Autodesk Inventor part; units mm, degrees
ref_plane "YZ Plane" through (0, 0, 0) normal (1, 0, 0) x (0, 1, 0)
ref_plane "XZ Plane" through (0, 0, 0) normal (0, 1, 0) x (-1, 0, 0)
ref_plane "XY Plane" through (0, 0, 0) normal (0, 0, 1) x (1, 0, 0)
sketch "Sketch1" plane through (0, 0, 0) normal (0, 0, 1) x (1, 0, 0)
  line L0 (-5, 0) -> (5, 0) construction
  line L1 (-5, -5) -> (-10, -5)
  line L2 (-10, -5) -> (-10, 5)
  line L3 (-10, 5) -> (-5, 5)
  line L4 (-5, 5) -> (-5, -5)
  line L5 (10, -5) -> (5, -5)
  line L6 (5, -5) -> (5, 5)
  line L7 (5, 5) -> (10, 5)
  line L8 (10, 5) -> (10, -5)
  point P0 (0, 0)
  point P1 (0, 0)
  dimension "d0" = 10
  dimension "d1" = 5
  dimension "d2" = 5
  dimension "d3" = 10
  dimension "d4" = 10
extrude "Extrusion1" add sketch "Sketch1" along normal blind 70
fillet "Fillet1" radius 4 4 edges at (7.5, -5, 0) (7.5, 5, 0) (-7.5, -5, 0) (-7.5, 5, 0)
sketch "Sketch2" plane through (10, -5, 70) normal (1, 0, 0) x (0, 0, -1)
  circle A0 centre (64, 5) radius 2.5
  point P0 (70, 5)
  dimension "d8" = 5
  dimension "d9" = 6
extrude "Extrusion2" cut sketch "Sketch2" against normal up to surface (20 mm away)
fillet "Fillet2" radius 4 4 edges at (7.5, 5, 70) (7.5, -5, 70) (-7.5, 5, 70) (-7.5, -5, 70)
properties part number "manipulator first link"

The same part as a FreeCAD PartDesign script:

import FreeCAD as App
import Part
import Sketcher
from FreeCAD import Vector
Q = App.Units.Quantity


def edges_at(feature, points):
    """Names of the edges that pass closest to the given points."""
    edges = feature.Shape.Edges
    near = lambda p: min(range(len(edges)), key=lambda i: edges[i].distToShape(Part.Vertex(*p))[0])
    return sorted({f"Edge{near(p) + 1}" for p in points})


def add_polygon(sketch, points):
    """Adds a closed chain of lines whose ends are joined by coincident constraints."""
    first, n = sketch.GeometryCount, len(points)
    for a, b in zip(points, points[1:] + points[:1]):
        sketch.addGeometry(Part.LineSegment(App.Vector(*a, 0), App.Vector(*b, 0)), False)
    for i in range(n):
        sketch.addConstraint(Sketcher.Constraint("Coincident", first + i, 2, first + (i + 1) % n, 1))

doc = App.newDocument("Part")
body = doc.addObject("PartDesign::Body", "Body")
body.AllowCompound = True

sketch1 = body.newObject("Sketcher::SketchObject", "Sketch")
sketch1.AttachmentSupport = (doc.getObject("XY_Plane"), [""])
sketch1.MapMode = "FlatFace"
add_polygon(sketch1, [(-10, -5), (-5, -5), (-5, 5), (-10, 5)])
add_polygon(sketch1, [(5, -5), (10, -5), (10, 5), (5, 5)])
sketch1.addConstraint([
    Sketcher.Constraint("Horizontal", 0),
    Sketcher.Constraint("Vertical", 1),
    Sketcher.Constraint("Horizontal", 2),
    Sketcher.Constraint("Vertical", 3),
    Sketcher.Constraint("Horizontal", 4),
    Sketcher.Constraint("Vertical", 5),
    Sketcher.Constraint("Horizontal", 6),
    Sketcher.Constraint("Vertical", 7),
    Sketcher.Constraint("Symmetric", 2, 2, 4, 2, -1, 1),
    Sketcher.Constraint("Symmetric", 0, 2, 6, 2, -1, 1),
    Sketcher.Constraint("Horizontal", 3, 2, 4, 2),
    Sketcher.Constraint("DistanceX", 0, 1, 0, 2, Q("5 mm")),
    Sketcher.Constraint("DistanceY", 1, 1, 1, 2, Q("10 mm")),
    Sketcher.Constraint("DistanceX", 0, 2, -1, 1, Q("5 mm")),
])
pad1 = body.newObject("PartDesign::Pad", "Pad")
pad1.Profile = sketch1
pad1.Length = 70
doc.recompute()

fillet = body.newObject("PartDesign::Fillet", "Fillet")
fillet.Base = (pad1, edges_at(pad1, [
    (7.5, -5, 0),
    (7.5, 5, 0),
    (-7.5, -5, 0),
    (-7.5, 5, 0),
]))
fillet.Radius = 4

sketch2 = body.newObject("Sketcher::SketchObject", "Sketch001")
sketch2.AttachmentSupport = (doc.getObject("YZ_Plane"), [""])
sketch2.MapMode = "FlatFace"
sketch2.AttachmentOffset = App.Placement(Vector(0, 0, 10), App.Rotation())
sketch2.addGeometry(Part.Circle(Vector(0, 6, 0), Vector(0, 0, 1), 2.5), False)
sketch2.addConstraint([
    Sketcher.Constraint("PointOnObject", 0, 3, -2),
    Sketcher.Constraint("Diameter", 0, Q("5 mm")),
    Sketcher.Constraint("DistanceY", -1, 1, 0, 3, Q("6 mm")),
])
pocket1 = body.newObject("PartDesign::Pocket", "Pocket")
pocket1.Profile = sketch2
pocket1.Length = 20
doc.recompute()

fillet2 = body.newObject("PartDesign::Fillet", "Fillet001")
fillet2.Base = (pocket1, edges_at(pocket1, [
    (7.5, 5, 70),
    (7.5, -5, 70),
    (-7.5, 5, 70),
    (-7.5, -5, 70),
]))
fillet2.Radius = 4

doc.recompute()
